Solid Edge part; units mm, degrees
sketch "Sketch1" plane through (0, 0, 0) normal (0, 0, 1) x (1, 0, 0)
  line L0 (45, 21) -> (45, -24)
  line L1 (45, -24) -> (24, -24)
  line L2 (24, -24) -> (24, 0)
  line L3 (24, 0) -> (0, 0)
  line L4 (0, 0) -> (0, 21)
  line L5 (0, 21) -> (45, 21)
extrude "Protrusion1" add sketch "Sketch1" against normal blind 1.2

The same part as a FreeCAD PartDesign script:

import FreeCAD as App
import Part
import Sketcher
from FreeCAD import Vector
Q = App.Units.Quantity


def add_polygon(sketch, points):
    """Adds a closed chain of lines whose ends are joined by coincident constraints."""
    first, n = sketch.GeometryCount, len(points)
    for a, b in zip(points, points[1:] + points[:1]):
        sketch.addGeometry(Part.LineSegment(App.Vector(*a, 0), App.Vector(*b, 0)), False)
    for i in range(n):
        sketch.addConstraint(Sketcher.Constraint("Coincident", first + i, 2, first + (i + 1) % n, 1))

doc = App.newDocument("Part")
body = doc.addObject("PartDesign::Body", "Body")

# Sketch on XY plane
sketch1 = body.newObject("Sketcher::SketchObject", "Sketch")
sketch1.AttachmentSupport = (doc.getObject("XY_Plane"), [""])
sketch1.MapMode = "FlatFace"
add_polygon(sketch1, [(45, -24), (45, 21), (0, 21), (0, 0), (24, 0), (24, -24)])  # lines 0-5
sketch1.addConstraint([
    Sketcher.Constraint("Vertical", 0),
    Sketcher.Constraint("Horizontal", 1),
    Sketcher.Constraint("Vertical", 2),
    Sketcher.Constraint("Horizontal", 3),
    Sketcher.Constraint("Vertical", 4),
    Sketcher.Constraint("Horizontal", 5),
    Sketcher.Constraint("Coincident", 2, 2, -1, 1),
    Sketcher.Constraint("Equal", 1, 0),
    Sketcher.Constraint("Equal", 5, 2),
    Sketcher.Constraint("DistanceX", 1, 2, 1, 1, Q("45 mm")),
    Sketcher.Constraint("DistanceX", 3, 1, 3, 2, Q("24 mm")),
])
pad1 = body.newObject("PartDesign::Pad", "Pad")
pad1.Profile = sketch1
pad1.Length = 1.2
pad1.Reversed = True

doc.recompute()
